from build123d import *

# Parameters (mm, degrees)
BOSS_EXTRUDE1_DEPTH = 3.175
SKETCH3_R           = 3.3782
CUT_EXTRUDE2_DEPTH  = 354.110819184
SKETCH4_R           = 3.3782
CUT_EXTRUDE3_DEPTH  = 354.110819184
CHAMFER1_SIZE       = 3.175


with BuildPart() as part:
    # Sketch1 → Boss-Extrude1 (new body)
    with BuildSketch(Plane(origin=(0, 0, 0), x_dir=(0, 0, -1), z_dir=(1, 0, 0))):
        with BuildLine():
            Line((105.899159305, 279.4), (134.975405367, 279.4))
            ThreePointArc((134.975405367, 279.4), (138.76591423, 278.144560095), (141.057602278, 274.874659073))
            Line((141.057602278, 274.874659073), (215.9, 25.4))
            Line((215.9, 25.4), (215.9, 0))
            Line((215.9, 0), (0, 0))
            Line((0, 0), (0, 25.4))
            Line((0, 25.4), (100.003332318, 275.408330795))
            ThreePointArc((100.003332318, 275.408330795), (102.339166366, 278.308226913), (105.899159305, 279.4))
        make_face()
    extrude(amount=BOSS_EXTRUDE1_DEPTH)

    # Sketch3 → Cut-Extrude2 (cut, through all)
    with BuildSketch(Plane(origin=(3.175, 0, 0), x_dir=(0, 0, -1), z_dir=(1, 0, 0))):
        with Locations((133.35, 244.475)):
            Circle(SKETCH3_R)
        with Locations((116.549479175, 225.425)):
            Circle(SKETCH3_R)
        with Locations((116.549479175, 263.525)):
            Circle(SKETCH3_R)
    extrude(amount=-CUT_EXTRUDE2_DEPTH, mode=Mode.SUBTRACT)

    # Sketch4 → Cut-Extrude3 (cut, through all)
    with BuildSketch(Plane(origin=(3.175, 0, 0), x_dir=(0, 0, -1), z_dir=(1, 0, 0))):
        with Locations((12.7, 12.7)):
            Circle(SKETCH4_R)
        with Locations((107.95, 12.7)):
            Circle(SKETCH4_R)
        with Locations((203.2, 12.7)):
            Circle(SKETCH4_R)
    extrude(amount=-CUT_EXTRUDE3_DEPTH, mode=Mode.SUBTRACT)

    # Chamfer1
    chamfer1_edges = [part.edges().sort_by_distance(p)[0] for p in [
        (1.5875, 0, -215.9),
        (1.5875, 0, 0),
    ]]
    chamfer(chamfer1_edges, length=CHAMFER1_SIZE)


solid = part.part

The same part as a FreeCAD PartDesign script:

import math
import FreeCAD as App
import Part
import Sketcher
from FreeCAD import Vector
Q = App.Units.Quantity


def edges_at(feature, points):
    """Names of the edges that pass closest to the given points."""
    edges = feature.Shape.Edges
    near = lambda p: min(range(len(edges)), key=lambda i: edges[i].distToShape(Part.Vertex(*p))[0])
    return sorted({f"Edge{near(p) + 1}" for p in points})

doc = App.newDocument("Part")
body = doc.addObject("PartDesign::Body", "Body")

# Sketch on YZ plane
sketch1 = body.newObject("Sketcher::SketchObject", "Sketch")
sketch1.AttachmentSupport = (doc.getObject("YZ_Plane"), [""])
sketch1.MapMode = "FlatFace"
sketch1.addGeometry([
    Part.LineSegment(Vector(279.4, -134.975405, 0), Vector(279.4, -105.899159, 0)),  # 0
    Part.ArcOfCircle(Part.Circle(Vector(273.05, -105.899159, 0), Vector(0, 0, 1), 6.35), math.radians(0), math.radians(68.19859)),  # 1
    Part.LineSegment(Vector(275.408331, -100.003332, 0), Vector(25.4, 0, 0)),  # 2
    Part.LineSegment(Vector(25.4, 0, 0), Vector(0, 0, 0)),  # 3
    Part.LineSegment(Vector(0, 0, 0), Vector(0, -215.9, 0)),  # 4
    Part.LineSegment(Vector(0, -215.9, 0), Vector(25.4, -215.9, 0)),  # 5
    Part.LineSegment(Vector(25.4, -215.9, 0), Vector(274.874659, -141.057602, 0)),  # 6
    Part.ArcOfCircle(Part.Circle(Vector(273.05, -134.975405, 0), Vector(0, 0, 1), 6.35), math.radians(-73.300756), math.radians(0)),  # 7
], False)
sketch1.addConstraint([
    Sketcher.Constraint("Tangent", 0, 2, 1, 1),
    Sketcher.Constraint("Tangent", 1, 2, 2, 1),
    Sketcher.Constraint("Coincident", 2, 2, 3, 1),
    Sketcher.Constraint("Coincident", 3, 2, 4, 1),
    Sketcher.Constraint("Coincident", 4, 2, 5, 1),
    Sketcher.Constraint("Coincident", 5, 2, 6, 1),
    Sketcher.Constraint("Tangent", 6, 2, 7, 1),
    Sketcher.Constraint("Tangent", 7, 2, 0, 1),
    Sketcher.Constraint("Vertical", 0),
    Sketcher.Constraint("Horizontal", 3),
    Sketcher.Constraint("Vertical", 4),
    Sketcher.Constraint("Horizontal", 5),
    Sketcher.Constraint("Coincident", 3, 2, -1, 1),
    Sketcher.Constraint("Equal", 1, 7),
    Sketcher.Constraint("Vertical", 2, 2, 5, 2),
    Sketcher.Constraint("DistanceX", 3, 2, 3, 1, Q("1 in")),
    Sketcher.Constraint("Radius", 1, Q("0.25 in")),
    Sketcher.Constraint("DistanceY", 4, 2, 4, 1, Q("8.5 in")),
    Sketcher.Constraint("DistanceX", -1, 1, 0, 2, Q("11 in")),
    Sketcher.Constraint("Distance", 6, 260.459191),
    Sketcher.Constraint("DistanceY", 0, 1, 0, 2, 29.076246),
])
pad1 = body.newObject("PartDesign::Pad", "Pad")
pad1.Profile = sketch1
pad1.Length = Q("0.125 in")

# Sketch on YZ plane
sketch2 = body.newObject("Sketcher::SketchObject", "Sketch001")
sketch2.AttachmentSupport = (doc.getObject("YZ_Plane"), [""])
sketch2.MapMode = "FlatFace"
sketch2.AttachmentOffset = App.Placement(Vector(0, 0, 0.125 * 25.4), App.Rotation())
sketch2.addGeometry([
    Part.Circle(Vector(244.475, -133.35, 0), Vector(0, 0, 1), 3.3782),
    Part.Circle(Vector(225.425, -116.549479, 0), Vector(0, 0, 1), 3.3782),
    Part.Circle(Vector(263.525, -116.549479, 0), Vector(0, 0, 1), 3.3782),
], False)
sketch2.addConstraint([
    Sketcher.Constraint("Equal", 0, 1),
    Sketcher.Constraint("Equal", 1, 2),
    Sketcher.Constraint("Horizontal", 1, 3, 2, 3),
    Sketcher.Constraint("Diameter", 0, Q("0.266 in")),
    Sketcher.Constraint("DistanceX", 1, 3, 2, 3, Q("1.5 in")),
    Sketcher.Constraint("DistanceY", 0, 3, -1, 1, Q("5.25 in")),
    Sketcher.Constraint("DistanceX", 1, 3, 0, 3, Q("0.75 in")),
    Sketcher.Constraint("DistanceX", -1, 1, 0, 3, Q("9.625 in")),
    Sketcher.Constraint("DistanceY", 1, 3, -1, 1, 116.549479),
])
pocket1 = body.newObject("PartDesign::Pocket", "Pocket")
pocket1.Profile = sketch2
pocket1.Type = "ThroughAll"

# Sketch on YZ plane
sketch3 = body.newObject("Sketcher::SketchObject", "Sketch002")
sketch3.AttachmentSupport = (doc.getObject("YZ_Plane"), [""])
sketch3.MapMode = "FlatFace"
sketch3.AttachmentOffset = App.Placement(Vector(0, 0, 0.125 * 25.4), App.Rotation())
sketch3.addGeometry([
    Part.Circle(Vector(12.7, -12.7, 0), Vector(0, 0, 1), 3.3782),
    Part.Circle(Vector(12.7, -107.95, 0), Vector(0, 0, 1), 3.3782),
    Part.Circle(Vector(12.7, -203.2, 0), Vector(0, 0, 1), 3.3782),
], False)
sketch3.addConstraint([
    Sketcher.Constraint("Equal", 0, 1),
    Sketcher.Constraint("Equal", 1, 2),
    Sketcher.Constraint("Vertical", 0, 3, 1, 3),
    Sketcher.Constraint("Vertical", 1, 3, 2, 3),
    Sketcher.Constraint("Diameter", 0, Q("0.266 in")),
    Sketcher.Constraint("DistanceY", 2, 3, -1, 1, Q("8 in")),
    Sketcher.Constraint("DistanceX", -1, 1, 0, 3, Q("0.5 in")),
    Sketcher.Constraint("DistanceY", 0, 3, -1, 1, Q("0.5 in")),
    Sketcher.Constraint("DistanceY", 1, 3, -1, 1, Q("4.25 in")),
])
pocket2 = body.newObject("PartDesign::Pocket", "Pocket001")
pocket2.Profile = sketch3
pocket2.Type = "ThroughAll"
doc.recompute()

chamfer = body.newObject("PartDesign::Chamfer", "Chamfer")
chamfer.Base = (pocket2, edges_at(pocket2, [(1.587, 0, -215.9), (1.587, 0, 0)]))
chamfer.Size = Q("0.125 in")

doc.recompute()
